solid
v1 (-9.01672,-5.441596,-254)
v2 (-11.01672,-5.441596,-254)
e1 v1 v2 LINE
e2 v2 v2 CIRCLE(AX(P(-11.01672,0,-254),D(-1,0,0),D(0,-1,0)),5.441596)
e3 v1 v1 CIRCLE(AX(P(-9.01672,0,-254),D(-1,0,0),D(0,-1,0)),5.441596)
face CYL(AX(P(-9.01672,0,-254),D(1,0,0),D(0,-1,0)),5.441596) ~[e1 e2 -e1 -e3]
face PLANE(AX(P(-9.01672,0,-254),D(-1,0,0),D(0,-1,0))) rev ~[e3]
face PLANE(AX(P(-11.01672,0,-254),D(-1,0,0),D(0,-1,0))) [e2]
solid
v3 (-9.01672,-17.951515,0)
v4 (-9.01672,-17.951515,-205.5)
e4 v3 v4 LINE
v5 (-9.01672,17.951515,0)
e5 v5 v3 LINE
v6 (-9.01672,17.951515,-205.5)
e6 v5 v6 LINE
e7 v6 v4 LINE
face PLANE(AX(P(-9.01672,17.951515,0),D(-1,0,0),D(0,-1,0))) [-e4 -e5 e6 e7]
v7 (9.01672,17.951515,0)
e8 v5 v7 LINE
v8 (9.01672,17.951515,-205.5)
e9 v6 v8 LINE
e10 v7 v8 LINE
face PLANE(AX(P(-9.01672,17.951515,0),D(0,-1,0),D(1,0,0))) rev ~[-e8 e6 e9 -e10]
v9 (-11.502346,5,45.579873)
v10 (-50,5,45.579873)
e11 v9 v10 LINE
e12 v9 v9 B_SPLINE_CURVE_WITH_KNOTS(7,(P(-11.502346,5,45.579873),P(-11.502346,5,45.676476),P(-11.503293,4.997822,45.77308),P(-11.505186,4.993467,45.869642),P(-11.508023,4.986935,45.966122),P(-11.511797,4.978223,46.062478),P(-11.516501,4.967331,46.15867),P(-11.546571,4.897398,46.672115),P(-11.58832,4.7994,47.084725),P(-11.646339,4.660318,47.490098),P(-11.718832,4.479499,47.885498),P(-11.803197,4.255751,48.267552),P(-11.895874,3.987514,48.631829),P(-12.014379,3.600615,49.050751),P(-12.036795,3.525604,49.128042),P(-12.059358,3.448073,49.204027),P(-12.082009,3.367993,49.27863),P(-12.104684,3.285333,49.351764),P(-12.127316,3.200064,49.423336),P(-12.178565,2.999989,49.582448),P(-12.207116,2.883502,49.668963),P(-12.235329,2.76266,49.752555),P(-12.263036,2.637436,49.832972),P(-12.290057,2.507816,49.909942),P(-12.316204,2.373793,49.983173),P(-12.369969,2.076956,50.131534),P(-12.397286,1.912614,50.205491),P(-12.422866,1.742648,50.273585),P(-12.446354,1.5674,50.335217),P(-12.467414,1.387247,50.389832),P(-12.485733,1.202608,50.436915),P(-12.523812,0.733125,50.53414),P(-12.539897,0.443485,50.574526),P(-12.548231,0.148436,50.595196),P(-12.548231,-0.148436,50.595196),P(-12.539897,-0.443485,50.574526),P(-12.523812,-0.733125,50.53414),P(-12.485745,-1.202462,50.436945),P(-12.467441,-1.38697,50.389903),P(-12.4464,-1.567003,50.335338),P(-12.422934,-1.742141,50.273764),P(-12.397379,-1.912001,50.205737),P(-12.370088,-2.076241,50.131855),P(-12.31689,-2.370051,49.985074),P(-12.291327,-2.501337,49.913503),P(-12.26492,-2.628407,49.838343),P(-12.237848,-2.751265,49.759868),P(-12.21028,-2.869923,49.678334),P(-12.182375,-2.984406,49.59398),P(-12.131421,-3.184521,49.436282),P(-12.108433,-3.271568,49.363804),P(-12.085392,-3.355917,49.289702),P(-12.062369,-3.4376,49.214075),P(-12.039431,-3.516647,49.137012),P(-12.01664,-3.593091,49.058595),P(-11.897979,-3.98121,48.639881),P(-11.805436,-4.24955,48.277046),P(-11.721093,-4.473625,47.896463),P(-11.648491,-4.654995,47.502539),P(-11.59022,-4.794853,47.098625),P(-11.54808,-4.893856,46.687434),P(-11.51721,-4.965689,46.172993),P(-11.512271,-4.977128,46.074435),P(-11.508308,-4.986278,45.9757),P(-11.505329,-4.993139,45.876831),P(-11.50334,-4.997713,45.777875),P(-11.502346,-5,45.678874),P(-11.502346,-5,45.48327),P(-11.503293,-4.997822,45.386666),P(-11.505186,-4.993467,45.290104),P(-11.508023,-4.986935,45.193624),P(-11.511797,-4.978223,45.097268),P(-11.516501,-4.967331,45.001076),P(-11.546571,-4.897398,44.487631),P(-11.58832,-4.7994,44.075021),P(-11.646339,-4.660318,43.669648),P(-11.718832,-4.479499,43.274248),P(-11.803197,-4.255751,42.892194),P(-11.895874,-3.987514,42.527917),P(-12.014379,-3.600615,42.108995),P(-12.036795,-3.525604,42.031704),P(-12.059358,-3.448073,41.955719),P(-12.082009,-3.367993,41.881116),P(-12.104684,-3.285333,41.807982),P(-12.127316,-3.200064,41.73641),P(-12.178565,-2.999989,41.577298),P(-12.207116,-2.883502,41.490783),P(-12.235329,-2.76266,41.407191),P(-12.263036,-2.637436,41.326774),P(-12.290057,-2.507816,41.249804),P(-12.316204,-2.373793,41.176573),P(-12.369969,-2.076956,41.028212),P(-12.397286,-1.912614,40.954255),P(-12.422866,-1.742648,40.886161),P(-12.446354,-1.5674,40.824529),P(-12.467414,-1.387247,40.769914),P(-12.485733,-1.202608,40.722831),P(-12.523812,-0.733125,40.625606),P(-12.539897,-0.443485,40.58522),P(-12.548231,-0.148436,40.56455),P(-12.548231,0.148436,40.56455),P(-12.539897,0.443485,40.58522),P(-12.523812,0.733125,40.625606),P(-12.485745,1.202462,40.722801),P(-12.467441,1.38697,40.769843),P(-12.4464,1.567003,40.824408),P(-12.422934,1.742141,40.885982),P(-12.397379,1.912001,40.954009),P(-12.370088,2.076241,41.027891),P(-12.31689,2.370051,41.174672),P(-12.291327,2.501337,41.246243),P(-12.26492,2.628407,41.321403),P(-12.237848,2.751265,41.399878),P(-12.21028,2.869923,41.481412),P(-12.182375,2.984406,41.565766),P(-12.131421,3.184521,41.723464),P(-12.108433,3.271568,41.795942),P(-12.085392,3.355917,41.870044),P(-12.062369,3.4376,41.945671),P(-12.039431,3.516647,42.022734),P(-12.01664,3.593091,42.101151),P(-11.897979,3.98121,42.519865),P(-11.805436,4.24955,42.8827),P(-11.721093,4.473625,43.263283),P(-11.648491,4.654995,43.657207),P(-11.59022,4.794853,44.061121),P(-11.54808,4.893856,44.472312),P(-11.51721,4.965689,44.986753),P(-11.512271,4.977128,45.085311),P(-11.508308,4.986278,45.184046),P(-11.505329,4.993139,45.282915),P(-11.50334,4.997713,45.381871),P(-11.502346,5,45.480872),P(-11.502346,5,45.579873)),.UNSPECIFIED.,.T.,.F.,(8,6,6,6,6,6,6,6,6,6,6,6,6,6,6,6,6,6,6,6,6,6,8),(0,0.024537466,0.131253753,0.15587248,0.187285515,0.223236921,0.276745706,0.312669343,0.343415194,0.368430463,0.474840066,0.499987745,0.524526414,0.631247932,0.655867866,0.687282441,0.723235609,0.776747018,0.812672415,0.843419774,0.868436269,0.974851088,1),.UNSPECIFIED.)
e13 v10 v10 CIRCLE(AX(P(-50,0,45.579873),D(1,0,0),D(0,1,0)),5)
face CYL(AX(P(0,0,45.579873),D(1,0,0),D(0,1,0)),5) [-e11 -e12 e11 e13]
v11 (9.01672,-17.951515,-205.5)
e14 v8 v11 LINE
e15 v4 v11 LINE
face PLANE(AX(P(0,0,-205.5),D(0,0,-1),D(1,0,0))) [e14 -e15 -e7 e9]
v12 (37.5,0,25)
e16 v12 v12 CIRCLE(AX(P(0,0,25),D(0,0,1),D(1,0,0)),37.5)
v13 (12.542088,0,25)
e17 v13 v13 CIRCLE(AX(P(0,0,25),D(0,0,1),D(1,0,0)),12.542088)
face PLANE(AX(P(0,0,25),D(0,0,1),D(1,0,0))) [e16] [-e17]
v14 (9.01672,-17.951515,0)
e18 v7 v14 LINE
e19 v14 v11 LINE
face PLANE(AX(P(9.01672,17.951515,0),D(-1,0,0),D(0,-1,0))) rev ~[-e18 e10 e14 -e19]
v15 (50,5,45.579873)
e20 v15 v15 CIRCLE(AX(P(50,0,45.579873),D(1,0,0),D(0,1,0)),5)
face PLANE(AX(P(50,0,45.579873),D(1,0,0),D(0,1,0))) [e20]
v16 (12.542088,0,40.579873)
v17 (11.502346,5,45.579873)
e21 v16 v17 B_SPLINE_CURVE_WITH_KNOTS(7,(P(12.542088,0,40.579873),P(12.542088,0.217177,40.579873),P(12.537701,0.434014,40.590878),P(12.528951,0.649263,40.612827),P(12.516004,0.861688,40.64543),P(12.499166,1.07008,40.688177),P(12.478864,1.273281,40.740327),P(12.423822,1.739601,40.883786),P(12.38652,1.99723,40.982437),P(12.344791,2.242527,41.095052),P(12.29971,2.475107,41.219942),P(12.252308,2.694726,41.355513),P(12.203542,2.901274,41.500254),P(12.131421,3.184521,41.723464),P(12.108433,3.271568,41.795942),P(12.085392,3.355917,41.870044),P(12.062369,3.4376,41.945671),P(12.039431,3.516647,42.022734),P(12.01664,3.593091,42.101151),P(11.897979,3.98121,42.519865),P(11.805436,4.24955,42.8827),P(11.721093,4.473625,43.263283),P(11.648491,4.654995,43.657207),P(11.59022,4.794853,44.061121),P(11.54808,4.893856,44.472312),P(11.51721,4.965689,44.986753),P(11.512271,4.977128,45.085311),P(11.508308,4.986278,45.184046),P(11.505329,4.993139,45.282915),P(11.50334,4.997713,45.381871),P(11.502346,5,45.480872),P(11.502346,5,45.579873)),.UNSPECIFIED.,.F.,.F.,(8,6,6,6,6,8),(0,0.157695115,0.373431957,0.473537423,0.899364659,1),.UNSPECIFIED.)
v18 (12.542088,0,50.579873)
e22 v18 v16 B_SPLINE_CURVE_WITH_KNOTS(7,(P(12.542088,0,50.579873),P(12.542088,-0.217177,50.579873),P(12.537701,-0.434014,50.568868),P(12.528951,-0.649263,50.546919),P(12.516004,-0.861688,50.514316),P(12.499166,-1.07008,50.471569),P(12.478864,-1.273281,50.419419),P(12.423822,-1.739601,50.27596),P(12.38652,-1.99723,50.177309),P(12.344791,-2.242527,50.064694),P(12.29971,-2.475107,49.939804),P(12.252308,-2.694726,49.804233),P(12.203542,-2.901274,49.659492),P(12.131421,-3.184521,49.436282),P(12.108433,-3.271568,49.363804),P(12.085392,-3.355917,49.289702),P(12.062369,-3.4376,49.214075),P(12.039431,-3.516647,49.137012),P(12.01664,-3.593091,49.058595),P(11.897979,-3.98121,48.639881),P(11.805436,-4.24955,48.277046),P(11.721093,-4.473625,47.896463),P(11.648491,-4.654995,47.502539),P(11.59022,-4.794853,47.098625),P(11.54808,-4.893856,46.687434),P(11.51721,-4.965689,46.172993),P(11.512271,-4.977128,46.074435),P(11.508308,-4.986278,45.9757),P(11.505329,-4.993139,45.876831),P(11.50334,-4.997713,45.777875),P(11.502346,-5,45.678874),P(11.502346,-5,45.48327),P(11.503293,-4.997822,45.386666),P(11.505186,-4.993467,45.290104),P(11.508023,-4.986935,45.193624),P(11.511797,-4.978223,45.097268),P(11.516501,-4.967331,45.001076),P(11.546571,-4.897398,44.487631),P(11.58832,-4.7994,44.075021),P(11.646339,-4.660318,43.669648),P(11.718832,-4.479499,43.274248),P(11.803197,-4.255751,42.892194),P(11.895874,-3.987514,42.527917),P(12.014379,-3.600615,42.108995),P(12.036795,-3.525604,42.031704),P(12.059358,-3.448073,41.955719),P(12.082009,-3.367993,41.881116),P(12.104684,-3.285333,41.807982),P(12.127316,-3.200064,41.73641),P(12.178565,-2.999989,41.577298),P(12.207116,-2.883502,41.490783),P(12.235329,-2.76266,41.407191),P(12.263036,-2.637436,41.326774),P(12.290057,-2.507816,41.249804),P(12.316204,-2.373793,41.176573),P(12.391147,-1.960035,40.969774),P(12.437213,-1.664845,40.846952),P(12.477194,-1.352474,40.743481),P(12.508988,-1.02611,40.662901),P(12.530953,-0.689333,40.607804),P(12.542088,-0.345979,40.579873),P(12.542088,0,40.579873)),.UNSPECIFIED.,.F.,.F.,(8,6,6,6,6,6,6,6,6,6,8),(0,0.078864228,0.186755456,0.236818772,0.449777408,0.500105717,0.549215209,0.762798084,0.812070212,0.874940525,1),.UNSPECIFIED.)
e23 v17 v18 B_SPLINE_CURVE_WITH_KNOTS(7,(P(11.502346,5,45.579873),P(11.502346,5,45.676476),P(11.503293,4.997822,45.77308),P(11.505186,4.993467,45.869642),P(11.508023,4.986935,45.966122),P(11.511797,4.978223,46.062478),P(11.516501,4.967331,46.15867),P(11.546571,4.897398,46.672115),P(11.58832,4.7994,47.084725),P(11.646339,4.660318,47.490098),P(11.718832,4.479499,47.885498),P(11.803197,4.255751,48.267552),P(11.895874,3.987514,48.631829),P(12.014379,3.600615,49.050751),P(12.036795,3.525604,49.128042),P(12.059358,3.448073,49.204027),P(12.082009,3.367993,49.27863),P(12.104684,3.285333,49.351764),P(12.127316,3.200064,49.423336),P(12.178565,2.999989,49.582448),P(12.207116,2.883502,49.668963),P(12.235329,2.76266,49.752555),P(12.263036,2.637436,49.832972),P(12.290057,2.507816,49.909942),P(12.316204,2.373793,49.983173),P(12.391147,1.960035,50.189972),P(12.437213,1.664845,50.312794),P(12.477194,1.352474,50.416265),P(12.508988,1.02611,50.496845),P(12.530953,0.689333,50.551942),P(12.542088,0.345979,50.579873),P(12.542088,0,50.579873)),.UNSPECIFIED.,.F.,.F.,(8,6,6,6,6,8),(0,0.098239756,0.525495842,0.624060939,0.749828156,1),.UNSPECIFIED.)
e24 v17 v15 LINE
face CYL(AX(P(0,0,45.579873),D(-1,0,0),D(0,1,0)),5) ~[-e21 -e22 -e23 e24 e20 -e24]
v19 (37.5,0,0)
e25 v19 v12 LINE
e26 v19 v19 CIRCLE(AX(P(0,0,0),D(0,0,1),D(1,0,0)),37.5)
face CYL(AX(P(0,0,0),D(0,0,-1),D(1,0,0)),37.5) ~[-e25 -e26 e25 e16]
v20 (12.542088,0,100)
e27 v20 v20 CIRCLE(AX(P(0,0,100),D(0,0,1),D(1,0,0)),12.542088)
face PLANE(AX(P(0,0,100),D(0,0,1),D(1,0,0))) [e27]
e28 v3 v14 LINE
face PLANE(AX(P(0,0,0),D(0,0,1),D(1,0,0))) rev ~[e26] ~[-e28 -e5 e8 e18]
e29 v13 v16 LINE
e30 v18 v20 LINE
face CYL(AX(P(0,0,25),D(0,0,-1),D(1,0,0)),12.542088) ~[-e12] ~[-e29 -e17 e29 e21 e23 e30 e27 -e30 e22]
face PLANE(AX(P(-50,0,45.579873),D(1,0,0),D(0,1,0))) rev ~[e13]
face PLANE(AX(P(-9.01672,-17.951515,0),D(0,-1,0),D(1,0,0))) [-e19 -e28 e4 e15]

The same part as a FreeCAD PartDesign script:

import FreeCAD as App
import Part
import Sketcher
from FreeCAD import Vector
Q = App.Units.Quantity


def add_polygon(sketch, points):
    """Adds a closed chain of lines whose ends are joined by coincident constraints."""
    first, n = sketch.GeometryCount, len(points)
    for a, b in zip(points, points[1:] + points[:1]):
        sketch.addGeometry(Part.LineSegment(App.Vector(*a, 0), App.Vector(*b, 0)), False)
    for i in range(n):
        sketch.addConstraint(Sketcher.Constraint("Coincident", first + i, 2, first + (i + 1) % n, 1))

doc = App.newDocument("Part")
body = doc.addObject("PartDesign::Body", "Body")

sketch1 = body.newObject("Sketcher::SketchObject", "Sketch")
sketch1.AttachmentSupport = (doc.getObject("XY_Plane"), [""])
sketch1.MapMode = "FlatFace"
sketch1.addGeometry(Part.Circle(Vector(0, 0, 0), Vector(0, 0, 1), 38), False)
sketch1.addConstraint(Sketcher.Constraint("Coincident", 0, 3, -1, 1))
sketch1.addConstraint(Sketcher.Constraint("Diameter", 0, Q("75 mm")))
pad1 = body.newObject("PartDesign::Pad", "Pad")
pad1.Profile = sketch1
pad1.Length = 25

sketch2 = body.newObject("Sketcher::SketchObject", "Sketch001")
sketch2.AttachmentSupport = (doc.getObject("XY_Plane"), [""])
sketch2.MapMode = "FlatFace"
add_polygon(sketch2, [(-9, -18), (-9, 18), (9, 18), (9, -18)])
sketch2.addConstraint(Sketcher.Constraint("Vertical", 0))
sketch2.addConstraint(Sketcher.Constraint("Horizontal", 1))
sketch2.addConstraint(Sketcher.Constraint("Vertical", 2))
sketch2.addConstraint(Sketcher.Constraint("Horizontal", 3))
sketch2.addConstraint(Sketcher.Constraint("Symmetric", 0, 2, 2, 2, -1, 1))
sketch2.addConstraint(Sketcher.Constraint("DistanceX", 1, 1, 1, 2, Q("18.03344 mm")))
sketch2.addConstraint(Sketcher.Constraint("DistanceY", 0, 1, 0, 2, Q("35.90303 mm")))
pad2 = body.newObject("PartDesign::Pad", "Pad001")
pad2.Profile = sketch2
pad2.Length = 205.5
pad2.Reversed = True

sketch3 = body.newObject("Sketcher::SketchObject", "Sketch002")
sketch3.AttachmentSupport = (doc.getObject("XY_Plane"), [""])
sketch3.MapMode = "FlatFace"
sketch3.AttachmentOffset = App.Placement(Vector(0, 0, 25), App.Rotation())
sketch3.addGeometry(Part.Circle(Vector(0, 0, 0), Vector(0, 0, 1), 13), False)
sketch3.addConstraint(Sketcher.Constraint("Coincident", 0, 3, -1, 1))
sketch3.addConstraint(Sketcher.Constraint("Diameter", 0, Q("25.084176 mm")))
pad3 = body.newObject("PartDesign::Pad", "Pad002")
pad3.Profile = sketch3
pad3.Length = 75

sketch4 = body.newObject("Sketcher::SketchObject", "Sketch003")
sketch4.AttachmentSupport = (doc.getObject("YZ_Plane"), [""])
sketch4.MapMode = "FlatFace"
sketch4.addGeometry(Part.Circle(Vector(0, 46, 0), Vector(0, 0, 1), 5), False)
sketch4.addConstraint(Sketcher.Constraint("PointOnObject", 0, 3, -2))
sketch4.addConstraint(Sketcher.Constraint("Diameter", 0, Q("10 mm")))
sketch4.addConstraint(Sketcher.Constraint("DistanceY", -1, 1, 0, 3, Q("45.579873 mm")))
pad4 = body.newObject("PartDesign::Pad", "Pad003")
pad4.Profile = sketch4
pad4.Length = 50

sketch5 = body.newObject("Sketcher::SketchObject", "Sketch004")
sketch5.AttachmentSupport = (doc.getObject("YZ_Plane"), [""])
sketch5.MapMode = "FlatFace"
sketch5.addGeometry(Part.Circle(Vector(0, 46, 0), Vector(0, 0, 1), 5), False)
sketch5.addConstraint(Sketcher.Constraint("PointOnObject", 0, 3, -2))
sketch5.addConstraint(Sketcher.Constraint("Diameter", 0, Q("10 mm")))
sketch5.addConstraint(Sketcher.Constraint("DistanceY", -1, 1, 0, 3, Q("45.579873 mm")))
pad5 = body.newObject("PartDesign::Pad", "Pad004")
pad5.Profile = sketch5
pad5.Length = 50
pad5.Reversed = True
body2 = doc.addObject("PartDesign::Body", "Body001")

sketch6 = body2.newObject("Sketcher::SketchObject", "Sketch005")
sketch6.AttachmentSupport = (doc.getObject("YZ_Plane001"), [""])
sketch6.MapMode = "FlatFace"
sketch6.AttachmentOffset = App.Placement(Vector(0, 0, -9.01672), App.Rotation())
sketch6.addGeometry(Part.Circle(Vector(0, -254, 0), Vector(0, 0, 1), 5), False)
sketch6.addConstraint(Sketcher.Constraint("PointOnObject", 0, 3, -2))
sketch6.addConstraint(Sketcher.Constraint("DistanceY", 0, 3, -1, 1, Q("254 mm")))
sketch6.addConstraint(Sketcher.Constraint("Diameter", 0, Q("10.883192 mm")))
pad6 = body2.newObject("PartDesign::Pad", "Pad005")
pad6.Profile = sketch6
pad6.Length = 2
pad6.Reversed = True

doc.recompute()
